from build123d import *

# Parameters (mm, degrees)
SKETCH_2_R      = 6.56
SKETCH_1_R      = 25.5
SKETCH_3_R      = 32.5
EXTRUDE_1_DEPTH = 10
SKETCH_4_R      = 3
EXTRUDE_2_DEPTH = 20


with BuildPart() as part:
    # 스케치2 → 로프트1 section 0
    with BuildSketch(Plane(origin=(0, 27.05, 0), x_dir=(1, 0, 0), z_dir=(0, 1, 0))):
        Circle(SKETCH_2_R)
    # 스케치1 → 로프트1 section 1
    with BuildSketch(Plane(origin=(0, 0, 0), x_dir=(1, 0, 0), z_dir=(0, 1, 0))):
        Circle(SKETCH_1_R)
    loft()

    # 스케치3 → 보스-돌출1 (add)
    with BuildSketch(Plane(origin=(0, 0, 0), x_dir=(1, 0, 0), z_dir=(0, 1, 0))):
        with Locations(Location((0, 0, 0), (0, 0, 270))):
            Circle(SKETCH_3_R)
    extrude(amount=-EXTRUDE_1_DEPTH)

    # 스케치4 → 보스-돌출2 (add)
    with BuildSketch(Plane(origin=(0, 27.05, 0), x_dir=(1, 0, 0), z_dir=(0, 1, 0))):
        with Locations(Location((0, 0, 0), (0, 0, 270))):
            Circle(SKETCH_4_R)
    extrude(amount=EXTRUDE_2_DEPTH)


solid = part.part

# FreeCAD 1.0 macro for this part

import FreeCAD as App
import Part
import Sketcher

doc = App.newDocument("Part")
body = doc.addObject("PartDesign::Body", "Body")

# Sketch on XZ plane
sketch1 = body.newObject("Sketcher::SketchObject", "Sketch")
sketch1.AttachmentSupport = (doc.getObject("XZ_Plane"), [""])
sketch1.MapMode = "FlatFace"
sketch1.AttachmentOffset = App.Placement(App.Vector(0, 0, -27.05), App.Rotation())
sketch1.addGeometry(Part.Circle(App.Vector(0, 0, 0), App.Vector(0, 0, 1), 6.56), False)
sketch1.addConstraint([
    Sketcher.Constraint("Coincident", 0, 3, -1, 1),
    Sketcher.Constraint("Diameter", 0, 13.12),
])

# Sketch on XZ plane
sketch2 = body.newObject("Sketcher::SketchObject", "Sketch001")
sketch2.AttachmentSupport = (doc.getObject("XZ_Plane"), [""])
sketch2.MapMode = "FlatFace"
sketch2.addGeometry(Part.Circle(App.Vector(0, 0, 0), App.Vector(0, 0, 1), 25.5), False)
sketch2.addConstraint([
    Sketcher.Constraint("Coincident", 0, 3, -1, 1),
    Sketcher.Constraint("Diameter", 0, 51.0),
])

additiveloft = body.newObject("PartDesign::AdditiveLoft", "AdditiveLoft")
additiveloft.Profile = sketch1
additiveloft.Sections = [sketch2]

# Sketch on XZ plane
sketch3 = body.newObject("Sketcher::SketchObject", "Sketch002")
sketch3.AttachmentSupport = (doc.getObject("XZ_Plane"), [""])
sketch3.MapMode = "FlatFace"
sketch3.addGeometry(Part.Circle(App.Vector(0, 0, 0), App.Vector(0, 0, 1), 32.5), False)
sketch3.addConstraint([
    Sketcher.Constraint("Coincident", 0, 3, -1, 1),
    Sketcher.Constraint("Diameter", 0, 65.0),
])
pad1 = body.newObject("PartDesign::Pad", "Pad")
pad1.Profile = sketch3
pad1.Length = 10

# Sketch on XZ plane
sketch4 = body.newObject("Sketcher::SketchObject", "Sketch003")
sketch4.AttachmentSupport = (doc.getObject("XZ_Plane"), [""])
sketch4.MapMode = "FlatFace"
sketch4.AttachmentOffset = App.Placement(App.Vector(0, 0, -27.05), App.Rotation())
sketch4.addGeometry(Part.Circle(App.Vector(0, 0, 0), App.Vector(0, 0, 1), 3), False)
sketch4.addConstraint([
    Sketcher.Constraint("Coincident", 0, 3, -1, 1),
    Sketcher.Constraint("Diameter", 0, 6.0),
])
pad2 = body.newObject("PartDesign::Pad", "Pad001")
pad2.Profile = sketch4
pad2.Length = 20
pad2.Reversed = True

doc.recompute()
